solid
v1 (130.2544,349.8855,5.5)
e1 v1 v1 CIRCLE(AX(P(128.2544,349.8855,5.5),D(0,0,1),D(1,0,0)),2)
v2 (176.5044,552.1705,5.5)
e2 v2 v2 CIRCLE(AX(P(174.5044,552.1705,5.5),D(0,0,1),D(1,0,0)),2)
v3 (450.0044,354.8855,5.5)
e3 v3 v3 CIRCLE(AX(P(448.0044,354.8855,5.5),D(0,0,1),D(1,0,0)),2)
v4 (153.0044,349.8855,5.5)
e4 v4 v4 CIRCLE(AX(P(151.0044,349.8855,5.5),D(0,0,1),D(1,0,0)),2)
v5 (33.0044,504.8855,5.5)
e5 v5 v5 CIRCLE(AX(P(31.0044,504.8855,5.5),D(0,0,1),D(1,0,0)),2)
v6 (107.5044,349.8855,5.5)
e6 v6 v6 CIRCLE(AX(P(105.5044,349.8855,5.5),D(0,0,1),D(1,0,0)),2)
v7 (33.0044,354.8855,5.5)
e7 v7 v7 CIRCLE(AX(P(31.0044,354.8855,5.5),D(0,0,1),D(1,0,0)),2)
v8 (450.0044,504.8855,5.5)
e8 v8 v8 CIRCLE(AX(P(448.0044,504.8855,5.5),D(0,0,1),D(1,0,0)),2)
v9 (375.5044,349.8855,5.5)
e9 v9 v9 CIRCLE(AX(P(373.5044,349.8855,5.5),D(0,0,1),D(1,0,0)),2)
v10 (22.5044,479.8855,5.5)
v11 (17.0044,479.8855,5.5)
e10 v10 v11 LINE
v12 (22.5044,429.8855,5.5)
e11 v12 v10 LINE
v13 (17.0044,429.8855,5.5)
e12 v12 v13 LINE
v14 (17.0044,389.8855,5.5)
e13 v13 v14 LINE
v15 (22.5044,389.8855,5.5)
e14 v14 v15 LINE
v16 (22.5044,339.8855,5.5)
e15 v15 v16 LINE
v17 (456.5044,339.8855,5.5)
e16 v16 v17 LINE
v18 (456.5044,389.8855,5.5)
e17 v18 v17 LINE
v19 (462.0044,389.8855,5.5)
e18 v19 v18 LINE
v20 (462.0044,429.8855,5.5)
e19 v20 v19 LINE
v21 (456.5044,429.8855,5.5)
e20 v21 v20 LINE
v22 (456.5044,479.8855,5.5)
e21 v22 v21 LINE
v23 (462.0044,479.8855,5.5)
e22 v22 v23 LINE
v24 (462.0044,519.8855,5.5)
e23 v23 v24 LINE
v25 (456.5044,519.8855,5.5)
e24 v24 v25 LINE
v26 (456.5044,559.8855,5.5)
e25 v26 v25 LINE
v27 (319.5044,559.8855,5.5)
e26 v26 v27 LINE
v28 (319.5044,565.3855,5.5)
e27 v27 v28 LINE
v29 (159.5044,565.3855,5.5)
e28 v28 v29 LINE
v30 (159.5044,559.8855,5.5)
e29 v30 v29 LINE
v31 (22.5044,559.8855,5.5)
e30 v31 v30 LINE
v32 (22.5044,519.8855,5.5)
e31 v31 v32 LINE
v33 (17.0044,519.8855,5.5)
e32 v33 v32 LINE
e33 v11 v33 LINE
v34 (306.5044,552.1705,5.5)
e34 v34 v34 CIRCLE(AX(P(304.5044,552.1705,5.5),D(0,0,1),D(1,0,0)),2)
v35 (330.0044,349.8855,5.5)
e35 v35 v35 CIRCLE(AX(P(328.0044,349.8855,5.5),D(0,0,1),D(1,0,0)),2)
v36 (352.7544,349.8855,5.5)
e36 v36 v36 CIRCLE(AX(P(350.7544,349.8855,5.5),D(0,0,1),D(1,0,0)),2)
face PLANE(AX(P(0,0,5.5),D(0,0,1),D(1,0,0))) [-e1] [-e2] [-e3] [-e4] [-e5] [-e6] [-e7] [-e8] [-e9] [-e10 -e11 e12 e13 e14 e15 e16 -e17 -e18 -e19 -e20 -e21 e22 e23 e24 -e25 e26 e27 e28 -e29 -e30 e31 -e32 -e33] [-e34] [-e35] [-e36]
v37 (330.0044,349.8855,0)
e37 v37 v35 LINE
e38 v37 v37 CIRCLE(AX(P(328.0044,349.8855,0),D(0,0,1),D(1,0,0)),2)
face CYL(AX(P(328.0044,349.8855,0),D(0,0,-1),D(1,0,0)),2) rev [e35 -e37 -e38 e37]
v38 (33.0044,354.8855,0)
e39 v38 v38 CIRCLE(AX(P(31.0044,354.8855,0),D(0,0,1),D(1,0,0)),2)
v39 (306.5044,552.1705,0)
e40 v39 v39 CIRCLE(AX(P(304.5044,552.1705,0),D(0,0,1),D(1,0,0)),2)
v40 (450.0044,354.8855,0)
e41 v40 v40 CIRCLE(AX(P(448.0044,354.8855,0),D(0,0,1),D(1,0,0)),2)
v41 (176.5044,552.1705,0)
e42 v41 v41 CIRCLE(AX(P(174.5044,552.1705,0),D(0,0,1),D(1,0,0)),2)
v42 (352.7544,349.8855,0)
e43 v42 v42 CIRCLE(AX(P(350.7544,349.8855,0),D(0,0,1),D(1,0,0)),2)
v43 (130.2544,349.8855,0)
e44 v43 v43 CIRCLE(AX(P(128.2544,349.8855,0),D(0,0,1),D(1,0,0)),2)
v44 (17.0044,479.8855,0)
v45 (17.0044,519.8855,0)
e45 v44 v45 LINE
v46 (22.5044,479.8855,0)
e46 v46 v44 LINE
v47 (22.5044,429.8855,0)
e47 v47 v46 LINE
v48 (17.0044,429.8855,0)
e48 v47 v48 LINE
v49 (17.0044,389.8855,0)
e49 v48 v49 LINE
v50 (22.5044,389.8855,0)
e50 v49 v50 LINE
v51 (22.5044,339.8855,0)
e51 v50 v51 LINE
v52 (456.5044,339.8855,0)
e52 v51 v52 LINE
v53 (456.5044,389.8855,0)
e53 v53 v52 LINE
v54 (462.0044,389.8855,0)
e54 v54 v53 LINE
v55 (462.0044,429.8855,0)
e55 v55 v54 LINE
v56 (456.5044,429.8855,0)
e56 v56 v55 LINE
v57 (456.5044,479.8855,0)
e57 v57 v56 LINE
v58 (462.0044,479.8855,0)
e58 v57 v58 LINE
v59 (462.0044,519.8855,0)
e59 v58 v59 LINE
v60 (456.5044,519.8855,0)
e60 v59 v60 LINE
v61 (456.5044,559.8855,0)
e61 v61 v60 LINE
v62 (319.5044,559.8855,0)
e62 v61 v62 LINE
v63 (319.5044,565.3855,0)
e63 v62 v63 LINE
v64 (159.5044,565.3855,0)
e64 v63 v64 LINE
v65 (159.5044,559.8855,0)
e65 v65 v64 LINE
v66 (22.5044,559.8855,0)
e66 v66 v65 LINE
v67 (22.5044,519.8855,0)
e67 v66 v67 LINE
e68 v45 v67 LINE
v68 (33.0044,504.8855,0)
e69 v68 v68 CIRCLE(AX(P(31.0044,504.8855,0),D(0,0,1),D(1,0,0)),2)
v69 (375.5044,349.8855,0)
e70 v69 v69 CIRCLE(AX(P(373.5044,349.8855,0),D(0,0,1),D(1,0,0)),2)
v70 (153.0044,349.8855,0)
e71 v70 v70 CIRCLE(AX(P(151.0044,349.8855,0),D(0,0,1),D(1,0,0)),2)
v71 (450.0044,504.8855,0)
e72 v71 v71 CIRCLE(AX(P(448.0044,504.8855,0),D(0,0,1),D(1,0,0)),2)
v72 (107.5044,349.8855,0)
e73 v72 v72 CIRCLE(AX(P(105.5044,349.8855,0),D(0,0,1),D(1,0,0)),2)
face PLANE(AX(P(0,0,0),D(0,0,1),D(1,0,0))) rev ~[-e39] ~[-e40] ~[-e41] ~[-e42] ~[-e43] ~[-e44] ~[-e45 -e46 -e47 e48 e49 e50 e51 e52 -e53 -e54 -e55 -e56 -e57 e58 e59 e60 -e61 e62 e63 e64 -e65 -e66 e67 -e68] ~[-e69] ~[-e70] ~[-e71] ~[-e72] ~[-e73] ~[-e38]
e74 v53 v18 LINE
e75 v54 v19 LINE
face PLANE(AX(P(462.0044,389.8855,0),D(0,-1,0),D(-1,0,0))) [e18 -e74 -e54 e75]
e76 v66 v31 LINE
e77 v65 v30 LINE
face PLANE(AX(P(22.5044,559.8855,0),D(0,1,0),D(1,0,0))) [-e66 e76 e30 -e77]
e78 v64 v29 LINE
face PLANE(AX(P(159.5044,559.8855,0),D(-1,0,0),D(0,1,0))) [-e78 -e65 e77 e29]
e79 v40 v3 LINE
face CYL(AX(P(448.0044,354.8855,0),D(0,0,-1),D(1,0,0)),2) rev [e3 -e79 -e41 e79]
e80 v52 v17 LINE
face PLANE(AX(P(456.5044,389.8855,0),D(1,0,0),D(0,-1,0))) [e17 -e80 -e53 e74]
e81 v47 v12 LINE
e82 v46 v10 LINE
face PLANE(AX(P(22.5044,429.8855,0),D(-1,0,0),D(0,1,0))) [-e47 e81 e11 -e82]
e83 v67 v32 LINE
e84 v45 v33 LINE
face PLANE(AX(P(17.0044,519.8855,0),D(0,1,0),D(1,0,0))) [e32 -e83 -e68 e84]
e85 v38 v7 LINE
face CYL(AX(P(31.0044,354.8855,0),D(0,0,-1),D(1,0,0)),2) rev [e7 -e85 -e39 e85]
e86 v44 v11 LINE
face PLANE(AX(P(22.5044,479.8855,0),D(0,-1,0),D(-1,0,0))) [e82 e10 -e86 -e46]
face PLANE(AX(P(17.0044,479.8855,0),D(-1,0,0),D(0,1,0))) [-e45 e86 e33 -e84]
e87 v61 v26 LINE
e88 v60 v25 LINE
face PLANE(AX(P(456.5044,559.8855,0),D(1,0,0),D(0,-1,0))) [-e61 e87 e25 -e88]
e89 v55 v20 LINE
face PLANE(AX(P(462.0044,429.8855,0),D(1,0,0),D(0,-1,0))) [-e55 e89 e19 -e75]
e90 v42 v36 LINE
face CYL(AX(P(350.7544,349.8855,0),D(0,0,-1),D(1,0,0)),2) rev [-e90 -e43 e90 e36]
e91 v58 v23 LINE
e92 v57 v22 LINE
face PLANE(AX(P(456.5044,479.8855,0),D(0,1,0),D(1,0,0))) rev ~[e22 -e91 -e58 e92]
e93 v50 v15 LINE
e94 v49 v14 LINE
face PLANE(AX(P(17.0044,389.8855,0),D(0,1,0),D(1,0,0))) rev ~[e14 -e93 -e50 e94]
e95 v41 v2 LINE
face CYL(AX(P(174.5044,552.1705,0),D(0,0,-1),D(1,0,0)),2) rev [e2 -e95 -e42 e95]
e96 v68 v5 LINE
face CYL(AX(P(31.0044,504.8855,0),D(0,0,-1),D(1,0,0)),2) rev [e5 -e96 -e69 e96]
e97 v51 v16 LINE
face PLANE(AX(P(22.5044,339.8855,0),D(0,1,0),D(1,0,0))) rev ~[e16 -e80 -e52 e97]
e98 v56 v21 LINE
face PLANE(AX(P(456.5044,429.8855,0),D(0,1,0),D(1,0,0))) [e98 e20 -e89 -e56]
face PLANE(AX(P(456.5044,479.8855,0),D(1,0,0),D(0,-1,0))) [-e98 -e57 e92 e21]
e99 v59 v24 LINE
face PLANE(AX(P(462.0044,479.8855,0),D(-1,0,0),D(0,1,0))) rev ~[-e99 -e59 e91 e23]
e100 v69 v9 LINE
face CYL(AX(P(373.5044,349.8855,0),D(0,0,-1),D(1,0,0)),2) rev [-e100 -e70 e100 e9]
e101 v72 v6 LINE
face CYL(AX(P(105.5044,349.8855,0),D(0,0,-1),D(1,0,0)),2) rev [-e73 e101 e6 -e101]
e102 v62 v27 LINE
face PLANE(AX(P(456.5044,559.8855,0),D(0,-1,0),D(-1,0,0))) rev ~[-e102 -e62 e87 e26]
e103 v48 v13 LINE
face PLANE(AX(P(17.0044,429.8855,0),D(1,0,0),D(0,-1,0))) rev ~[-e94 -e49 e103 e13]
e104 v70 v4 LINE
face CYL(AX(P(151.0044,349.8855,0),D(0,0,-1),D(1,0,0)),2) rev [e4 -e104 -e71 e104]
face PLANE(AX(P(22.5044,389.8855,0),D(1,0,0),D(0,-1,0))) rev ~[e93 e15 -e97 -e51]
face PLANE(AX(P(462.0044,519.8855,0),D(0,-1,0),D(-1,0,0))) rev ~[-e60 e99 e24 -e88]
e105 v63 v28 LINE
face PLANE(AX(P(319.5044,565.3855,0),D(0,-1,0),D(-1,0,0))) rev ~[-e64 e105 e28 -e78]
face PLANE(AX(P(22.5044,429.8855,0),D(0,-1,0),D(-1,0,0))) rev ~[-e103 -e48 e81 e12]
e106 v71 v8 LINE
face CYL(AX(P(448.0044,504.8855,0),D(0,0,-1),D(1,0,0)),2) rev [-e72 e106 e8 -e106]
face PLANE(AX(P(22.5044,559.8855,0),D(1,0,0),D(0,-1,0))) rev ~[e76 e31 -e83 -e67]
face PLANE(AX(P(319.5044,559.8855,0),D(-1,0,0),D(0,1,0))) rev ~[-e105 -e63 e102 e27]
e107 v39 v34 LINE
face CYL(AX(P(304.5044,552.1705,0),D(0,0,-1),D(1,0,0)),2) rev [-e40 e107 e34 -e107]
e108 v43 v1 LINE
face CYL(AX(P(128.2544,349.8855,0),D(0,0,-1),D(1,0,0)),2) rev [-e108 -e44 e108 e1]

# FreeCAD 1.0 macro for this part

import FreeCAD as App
import Part
import Sketcher

V = App.Vector
Q = App.Units.Quantity

doc = App.newDocument("Part")
body = doc.addObject("PartDesign::Body", "Body")

sketch1 = doc.addObject("Sketcher::SketchObject", "Sketch")
body.addObject(sketch1)
sketch1.AttachmentSupport = (doc.XY_Plane, [""])
sketch1.MapMode = "FlatFace"
sketch1.addGeometry(Part.LineSegment(V(462, 429.9, 0), V(456.5, 429.9, 0)), False)
sketch1.addGeometry(Part.LineSegment(V(456.5, 429.9, 0), V(456.5, 479.9, 0)), False)
sketch1.addGeometry(Part.LineSegment(V(456.5, 479.9, 0), V(462, 479.9, 0)), False)
sketch1.addGeometry(Part.LineSegment(V(462, 479.9, 0), V(462, 519.9, 0)), False)
sketch1.addGeometry(Part.LineSegment(V(462, 519.9, 0), V(456.5, 519.9, 0)), False)
sketch1.addGeometry(Part.LineSegment(V(456.5, 519.9, 0), V(456.5, 559.9, 0)), False)
sketch1.addGeometry(Part.LineSegment(V(456.5, 559.9, 0), V(319.5, 559.9, 0)), False)
sketch1.addGeometry(Part.LineSegment(V(319.5, 559.9, 0), V(319.5, 565.4, 0)), False)
sketch1.addGeometry(Part.LineSegment(V(319.5, 565.4, 0), V(159.5, 565.4, 0)), False)
sketch1.addGeometry(Part.LineSegment(V(159.5, 565.4, 0), V(159.5, 559.9, 0)), False)
sketch1.addGeometry(Part.LineSegment(V(159.5, 559.9, 0), V(22.5, 559.9, 0)), False)
sketch1.addGeometry(Part.LineSegment(V(22.5, 559.9, 0), V(22.5, 519.9, 0)), False)
sketch1.addGeometry(Part.LineSegment(V(22.5, 519.9, 0), V(17, 519.9, 0)), False)
sketch1.addGeometry(Part.LineSegment(V(17, 519.9, 0), V(17, 479.9, 0)), False)
sketch1.addGeometry(Part.LineSegment(V(17, 479.9, 0), V(22.5, 479.9, 0)), False)
sketch1.addGeometry(Part.LineSegment(V(22.5, 479.9, 0), V(22.5, 429.9, 0)), False)
sketch1.addGeometry(Part.LineSegment(V(22.5, 429.9, 0), V(17, 429.9, 0)), False)
sketch1.addGeometry(Part.LineSegment(V(17, 429.9, 0), V(17, 389.9, 0)), False)
sketch1.addGeometry(Part.LineSegment(V(17, 389.9, 0), V(22.5, 389.9, 0)), False)
sketch1.addGeometry(Part.LineSegment(V(22.5, 389.9, 0), V(22.5, 339.9, 0)), False)
sketch1.addGeometry(Part.LineSegment(V(22.5, 339.9, 0), V(456.5, 339.9, 0)), False)
sketch1.addGeometry(Part.LineSegment(V(456.5, 339.9, 0), V(456.5, 389.9, 0)), False)
sketch1.addGeometry(Part.LineSegment(V(456.5, 389.9, 0), V(462, 389.9, 0)), False)
sketch1.addGeometry(Part.LineSegment(V(462, 389.9, 0), V(462, 429.9, 0)), False)
sketch1.addGeometry(Part.Circle(V(31, 354.9, 0), V(0, 0, 1), 2), False)
sketch1.addGeometry(Part.Circle(V(105.5, 349.9, 0), V(0, 0, 1), 2), False)
sketch1.addGeometry(Part.Circle(V(128.3, 349.9, 0), V(0, 0, 1), 2), False)
sketch1.addGeometry(Part.Circle(V(151, 349.9, 0), V(0, 0, 1), 2), False)
sketch1.addGeometry(Part.Circle(V(328, 349.9, 0), V(0, 0, 1), 2), False)
sketch1.addGeometry(Part.Circle(V(350.8, 349.9, 0), V(0, 0, 1), 2), False)
sketch1.addGeometry(Part.Circle(V(373.5, 349.9, 0), V(0, 0, 1), 2), False)
sketch1.addGeometry(Part.Circle(V(448, 354.9, 0), V(0, 0, 1), 2), False)
sketch1.addGeometry(Part.Circle(V(31, 504.9, 0), V(0, 0, 1), 2), False)
sketch1.addGeometry(Part.Circle(V(174.5, 552.2, 0), V(0, 0, 1), 2), False)
sketch1.addGeometry(Part.Circle(V(448, 504.9, 0), V(0, 0, 1), 2), False)
sketch1.addGeometry(Part.Circle(V(304.5, 552.2, 0), V(0, 0, 1), 2), False)
sketch1.addConstraint(Sketcher.Constraint("Coincident", 0, 2, 1, 1))
sketch1.addConstraint(Sketcher.Constraint("Coincident", 1, 2, 2, 1))
sketch1.addConstraint(Sketcher.Constraint("Coincident", 2, 2, 3, 1))
sketch1.addConstraint(Sketcher.Constraint("Coincident", 3, 2, 4, 1))
sketch1.addConstraint(Sketcher.Constraint("Coincident", 4, 2, 5, 1))
sketch1.addConstraint(Sketcher.Constraint("Coincident", 5, 2, 6, 1))
sketch1.addConstraint(Sketcher.Constraint("Coincident", 6, 2, 7, 1))
sketch1.addConstraint(Sketcher.Constraint("Coincident", 7, 2, 8, 1))
sketch1.addConstraint(Sketcher.Constraint("Coincident", 8, 2, 9, 1))
sketch1.addConstraint(Sketcher.Constraint("Coincident", 9, 2, 10, 1))
sketch1.addConstraint(Sketcher.Constraint("Coincident", 10, 2, 11, 1))
sketch1.addConstraint(Sketcher.Constraint("Coincident", 11, 2, 12, 1))
sketch1.addConstraint(Sketcher.Constraint("Coincident", 12, 2, 13, 1))
sketch1.addConstraint(Sketcher.Constraint("Coincident", 13, 2, 14, 1))
sketch1.addConstraint(Sketcher.Constraint("Coincident", 14, 2, 15, 1))
sketch1.addConstraint(Sketcher.Constraint("Coincident", 15, 2, 16, 1))
sketch1.addConstraint(Sketcher.Constraint("Coincident", 16, 2, 17, 1))
sketch1.addConstraint(Sketcher.Constraint("Coincident", 17, 2, 18, 1))
sketch1.addConstraint(Sketcher.Constraint("Coincident", 18, 2, 19, 1))
sketch1.addConstraint(Sketcher.Constraint("Coincident", 19, 2, 20, 1))
sketch1.addConstraint(Sketcher.Constraint("Coincident", 20, 2, 21, 1))
sketch1.addConstraint(Sketcher.Constraint("Coincident", 21, 2, 22, 1))
sketch1.addConstraint(Sketcher.Constraint("Coincident", 22, 2, 23, 1))
sketch1.addConstraint(Sketcher.Constraint("Coincident", 23, 2, 0, 1))
sketch1.addConstraint(Sketcher.Constraint("Horizontal", 0))
sketch1.addConstraint(Sketcher.Constraint("Vertical", 1))
sketch1.addConstraint(Sketcher.Constraint("Horizontal", 2))
sketch1.addConstraint(Sketcher.Constraint("Vertical", 3))
sketch1.addConstraint(Sketcher.Constraint("Horizontal", 4))
sketch1.addConstraint(Sketcher.Constraint("Vertical", 5))
sketch1.addConstraint(Sketcher.Constraint("Horizontal", 6))
sketch1.addConstraint(Sketcher.Constraint("Vertical", 7))
sketch1.addConstraint(Sketcher.Constraint("Horizontal", 8))
sketch1.addConstraint(Sketcher.Constraint("Vertical", 9))
sketch1.addConstraint(Sketcher.Constraint("Horizontal", 10))
sketch1.addConstraint(Sketcher.Constraint("Vertical", 11))
sketch1.addConstraint(Sketcher.Constraint("Horizontal", 12))
sketch1.addConstraint(Sketcher.Constraint("Vertical", 13))
sketch1.addConstraint(Sketcher.Constraint("Horizontal", 14))
sketch1.addConstraint(Sketcher.Constraint("Vertical", 15))
sketch1.addConstraint(Sketcher.Constraint("Horizontal", 16))
sketch1.addConstraint(Sketcher.Constraint("Vertical", 17))
sketch1.addConstraint(Sketcher.Constraint("Horizontal", 18))
sketch1.addConstraint(Sketcher.Constraint("Vertical", 19))
sketch1.addConstraint(Sketcher.Constraint("Horizontal", 20))
sketch1.addConstraint(Sketcher.Constraint("Vertical", 21))
sketch1.addConstraint(Sketcher.Constraint("Horizontal", 22))
sketch1.addConstraint(Sketcher.Constraint("Vertical", 23))
sketch1.addConstraint(Sketcher.Constraint("Equal", 24, 25))
sketch1.addConstraint(Sketcher.Constraint("Equal", 25, 26))
sketch1.addConstraint(Sketcher.Constraint("Equal", 26, 27))
sketch1.addConstraint(Sketcher.Constraint("Equal", 27, 28))
sketch1.addConstraint(Sketcher.Constraint("Equal", 28, 29))
sketch1.addConstraint(Sketcher.Constraint("Equal", 29, 30))
sketch1.addConstraint(Sketcher.Constraint("Equal", 30, 31))
sketch1.addConstraint(Sketcher.Constraint("Equal", 31, 32))
sketch1.addConstraint(Sketcher.Constraint("Equal", 32, 33))
sketch1.addConstraint(Sketcher.Constraint("Equal", 33, 34))
sketch1.addConstraint(Sketcher.Constraint("Equal", 34, 35))
sketch1.addConstraint(Sketcher.Constraint("Horizontal", 25, 3, 26, 3))
sketch1.addConstraint(Sketcher.Constraint("Horizontal", 26, 3, 27, 3))
sketch1.addConstraint(Sketcher.Constraint("Horizontal", 27, 3, 28, 3))
sketch1.addConstraint(Sketcher.Constraint("Horizontal", 28, 3, 29, 3))
sketch1.addConstraint(Sketcher.Constraint("Horizontal", 29, 3, 30, 3))
sketch1.addConstraint(Sketcher.Constraint("Horizontal", 24, 3, 31, 3))
sketch1.addConstraint(Sketcher.Constraint("Horizontal", 32, 3, 34, 3))
sketch1.addConstraint(Sketcher.Constraint("Horizontal", 33, 3, 35, 3))
sketch1.addConstraint(Sketcher.Constraint("Horizontal", 6, 2, 9, 2))
sketch1.addConstraint(Sketcher.Constraint("Horizontal", 4, 2, 11, 2))
sketch1.addConstraint(Sketcher.Constraint("Horizontal", 2, 2, 13, 2))
sketch1.addConstraint(Sketcher.Constraint("Horizontal", 0, 2, 15, 2))
sketch1.addConstraint(Sketcher.Constraint("Horizontal", 18, 2, 21, 2))
sketch1.addConstraint(Sketcher.Constraint("Vertical", 24, 3, 32, 3))
sketch1.addConstraint(Sketcher.Constraint("Vertical", 31, 3, 34, 3))
sketch1.addConstraint(Sketcher.Constraint("Vertical", 1, 2, 4, 2))
sketch1.addConstraint(Sketcher.Constraint("Vertical", 11, 2, 14, 2))
sketch1.addConstraint(Sketcher.Constraint("Vertical", 13, 2, 16, 2))
sketch1.addConstraint(Sketcher.Constraint("Vertical", 15, 2, 18, 2))
sketch1.addConstraint(Sketcher.Constraint("Vertical", 5, 2, 20, 2))
sketch1.addConstraint(Sketcher.Constraint("Vertical", 3, 2, 22, 2))
sketch1.addConstraint(Sketcher.Constraint("Equal", 6, 10))
sketch1.addConstraint(Sketcher.Constraint("Equal", 4, 12))
sketch1.addConstraint(Sketcher.Constraint("Equal", 3, 5))
sketch1.addConstraint(Sketcher.Constraint("Equal", 22, 7))
sketch1.addConstraint(Sketcher.Constraint("Equal", 13, 17))
sketch1.addConstraint(Sketcher.Constraint("Equal", 15, 19))
sketch1.addConstraint(Sketcher.Constraint("Diameter", 24, Q("4 mm")))
sketch1.addConstraint(Sketcher.Constraint("DistanceX", 6, 2, 6, 1, Q("137 mm")))
sketch1.addConstraint(Sketcher.Constraint("DistanceX", 8, 2, 8, 1, Q("160 mm")))
sketch1.addConstraint(Sketcher.Constraint("DistanceY", 1, 1, 1, 2, Q("50 mm")))
sketch1.addConstraint(Sketcher.Constraint("DistanceY", 3, 1, 3, 2, Q("40 mm")))
sketch1.addConstraint(Sketcher.Constraint("DistanceX", 0, 2, 0, 1, Q("5.5 mm")))
sketch1.addConstraint(Sketcher.Constraint("DistanceY", 24, 3, 32, 3, Q("150 mm")))
sketch1.addConstraint(Sketcher.Constraint("DistanceY", 34, 3, 5, 2, Q("55 mm")))
sketch1.addConstraint(Sketcher.Constraint("DistanceX", 10, 2, 33, 3, Q("152 mm")))
sketch1.addConstraint(Sketcher.Constraint("DistanceY", 19, 2, 25, 3, Q("10 mm")))
sketch1.addConstraint(Sketcher.Constraint("DistanceX", 31, 3, 0, 2, Q("8.5 mm")))
sketch1.addConstraint(Sketcher.Constraint("DistanceX", 10, 2, 32, 3, Q("8.5 mm")))
sketch1.addConstraint(Sketcher.Constraint("DistanceX", 25, 3, 26, 3, Q("22.75 mm")))
sketch1.addConstraint(Sketcher.Constraint("DistanceX", 26, 3, 27, 3, Q("22.75 mm")))
sketch1.addConstraint(Sketcher.Constraint("DistanceX", 28, 3, 29, 3, Q("22.75 mm")))
sketch1.addConstraint(Sketcher.Constraint("DistanceX", 29, 3, 30, 3, Q("22.75 mm")))
sketch1.addConstraint(Sketcher.Constraint("DistanceX", 24, 3, 27, 3, Q("120 mm")))
sketch1.addConstraint(Sketcher.Constraint("DistanceX", 27, 3, 28, 3, Q("177 mm")))
sketch1.addConstraint(Sketcher.Constraint("DistanceX", 33, 3, 35, 3, Q("130 mm")))
sketch1.addConstraint(Sketcher.Constraint("DistanceY", 35, 3, 6, 2, Q("7.715 mm")))
sketch1.addConstraint(Sketcher.Constraint("DistanceX", -1, 1, 24, 3, Q("31.0044 mm")))
sketch1.addConstraint(Sketcher.Constraint("DistanceY", -1, 1, 24, 3, Q("354.8855 mm")))
pad1 = doc.addObject("PartDesign::Pad", "Pad")
body.addObject(pad1)
pad1.Profile = sketch1
pad1.Length = 5.5

doc.recompute()
